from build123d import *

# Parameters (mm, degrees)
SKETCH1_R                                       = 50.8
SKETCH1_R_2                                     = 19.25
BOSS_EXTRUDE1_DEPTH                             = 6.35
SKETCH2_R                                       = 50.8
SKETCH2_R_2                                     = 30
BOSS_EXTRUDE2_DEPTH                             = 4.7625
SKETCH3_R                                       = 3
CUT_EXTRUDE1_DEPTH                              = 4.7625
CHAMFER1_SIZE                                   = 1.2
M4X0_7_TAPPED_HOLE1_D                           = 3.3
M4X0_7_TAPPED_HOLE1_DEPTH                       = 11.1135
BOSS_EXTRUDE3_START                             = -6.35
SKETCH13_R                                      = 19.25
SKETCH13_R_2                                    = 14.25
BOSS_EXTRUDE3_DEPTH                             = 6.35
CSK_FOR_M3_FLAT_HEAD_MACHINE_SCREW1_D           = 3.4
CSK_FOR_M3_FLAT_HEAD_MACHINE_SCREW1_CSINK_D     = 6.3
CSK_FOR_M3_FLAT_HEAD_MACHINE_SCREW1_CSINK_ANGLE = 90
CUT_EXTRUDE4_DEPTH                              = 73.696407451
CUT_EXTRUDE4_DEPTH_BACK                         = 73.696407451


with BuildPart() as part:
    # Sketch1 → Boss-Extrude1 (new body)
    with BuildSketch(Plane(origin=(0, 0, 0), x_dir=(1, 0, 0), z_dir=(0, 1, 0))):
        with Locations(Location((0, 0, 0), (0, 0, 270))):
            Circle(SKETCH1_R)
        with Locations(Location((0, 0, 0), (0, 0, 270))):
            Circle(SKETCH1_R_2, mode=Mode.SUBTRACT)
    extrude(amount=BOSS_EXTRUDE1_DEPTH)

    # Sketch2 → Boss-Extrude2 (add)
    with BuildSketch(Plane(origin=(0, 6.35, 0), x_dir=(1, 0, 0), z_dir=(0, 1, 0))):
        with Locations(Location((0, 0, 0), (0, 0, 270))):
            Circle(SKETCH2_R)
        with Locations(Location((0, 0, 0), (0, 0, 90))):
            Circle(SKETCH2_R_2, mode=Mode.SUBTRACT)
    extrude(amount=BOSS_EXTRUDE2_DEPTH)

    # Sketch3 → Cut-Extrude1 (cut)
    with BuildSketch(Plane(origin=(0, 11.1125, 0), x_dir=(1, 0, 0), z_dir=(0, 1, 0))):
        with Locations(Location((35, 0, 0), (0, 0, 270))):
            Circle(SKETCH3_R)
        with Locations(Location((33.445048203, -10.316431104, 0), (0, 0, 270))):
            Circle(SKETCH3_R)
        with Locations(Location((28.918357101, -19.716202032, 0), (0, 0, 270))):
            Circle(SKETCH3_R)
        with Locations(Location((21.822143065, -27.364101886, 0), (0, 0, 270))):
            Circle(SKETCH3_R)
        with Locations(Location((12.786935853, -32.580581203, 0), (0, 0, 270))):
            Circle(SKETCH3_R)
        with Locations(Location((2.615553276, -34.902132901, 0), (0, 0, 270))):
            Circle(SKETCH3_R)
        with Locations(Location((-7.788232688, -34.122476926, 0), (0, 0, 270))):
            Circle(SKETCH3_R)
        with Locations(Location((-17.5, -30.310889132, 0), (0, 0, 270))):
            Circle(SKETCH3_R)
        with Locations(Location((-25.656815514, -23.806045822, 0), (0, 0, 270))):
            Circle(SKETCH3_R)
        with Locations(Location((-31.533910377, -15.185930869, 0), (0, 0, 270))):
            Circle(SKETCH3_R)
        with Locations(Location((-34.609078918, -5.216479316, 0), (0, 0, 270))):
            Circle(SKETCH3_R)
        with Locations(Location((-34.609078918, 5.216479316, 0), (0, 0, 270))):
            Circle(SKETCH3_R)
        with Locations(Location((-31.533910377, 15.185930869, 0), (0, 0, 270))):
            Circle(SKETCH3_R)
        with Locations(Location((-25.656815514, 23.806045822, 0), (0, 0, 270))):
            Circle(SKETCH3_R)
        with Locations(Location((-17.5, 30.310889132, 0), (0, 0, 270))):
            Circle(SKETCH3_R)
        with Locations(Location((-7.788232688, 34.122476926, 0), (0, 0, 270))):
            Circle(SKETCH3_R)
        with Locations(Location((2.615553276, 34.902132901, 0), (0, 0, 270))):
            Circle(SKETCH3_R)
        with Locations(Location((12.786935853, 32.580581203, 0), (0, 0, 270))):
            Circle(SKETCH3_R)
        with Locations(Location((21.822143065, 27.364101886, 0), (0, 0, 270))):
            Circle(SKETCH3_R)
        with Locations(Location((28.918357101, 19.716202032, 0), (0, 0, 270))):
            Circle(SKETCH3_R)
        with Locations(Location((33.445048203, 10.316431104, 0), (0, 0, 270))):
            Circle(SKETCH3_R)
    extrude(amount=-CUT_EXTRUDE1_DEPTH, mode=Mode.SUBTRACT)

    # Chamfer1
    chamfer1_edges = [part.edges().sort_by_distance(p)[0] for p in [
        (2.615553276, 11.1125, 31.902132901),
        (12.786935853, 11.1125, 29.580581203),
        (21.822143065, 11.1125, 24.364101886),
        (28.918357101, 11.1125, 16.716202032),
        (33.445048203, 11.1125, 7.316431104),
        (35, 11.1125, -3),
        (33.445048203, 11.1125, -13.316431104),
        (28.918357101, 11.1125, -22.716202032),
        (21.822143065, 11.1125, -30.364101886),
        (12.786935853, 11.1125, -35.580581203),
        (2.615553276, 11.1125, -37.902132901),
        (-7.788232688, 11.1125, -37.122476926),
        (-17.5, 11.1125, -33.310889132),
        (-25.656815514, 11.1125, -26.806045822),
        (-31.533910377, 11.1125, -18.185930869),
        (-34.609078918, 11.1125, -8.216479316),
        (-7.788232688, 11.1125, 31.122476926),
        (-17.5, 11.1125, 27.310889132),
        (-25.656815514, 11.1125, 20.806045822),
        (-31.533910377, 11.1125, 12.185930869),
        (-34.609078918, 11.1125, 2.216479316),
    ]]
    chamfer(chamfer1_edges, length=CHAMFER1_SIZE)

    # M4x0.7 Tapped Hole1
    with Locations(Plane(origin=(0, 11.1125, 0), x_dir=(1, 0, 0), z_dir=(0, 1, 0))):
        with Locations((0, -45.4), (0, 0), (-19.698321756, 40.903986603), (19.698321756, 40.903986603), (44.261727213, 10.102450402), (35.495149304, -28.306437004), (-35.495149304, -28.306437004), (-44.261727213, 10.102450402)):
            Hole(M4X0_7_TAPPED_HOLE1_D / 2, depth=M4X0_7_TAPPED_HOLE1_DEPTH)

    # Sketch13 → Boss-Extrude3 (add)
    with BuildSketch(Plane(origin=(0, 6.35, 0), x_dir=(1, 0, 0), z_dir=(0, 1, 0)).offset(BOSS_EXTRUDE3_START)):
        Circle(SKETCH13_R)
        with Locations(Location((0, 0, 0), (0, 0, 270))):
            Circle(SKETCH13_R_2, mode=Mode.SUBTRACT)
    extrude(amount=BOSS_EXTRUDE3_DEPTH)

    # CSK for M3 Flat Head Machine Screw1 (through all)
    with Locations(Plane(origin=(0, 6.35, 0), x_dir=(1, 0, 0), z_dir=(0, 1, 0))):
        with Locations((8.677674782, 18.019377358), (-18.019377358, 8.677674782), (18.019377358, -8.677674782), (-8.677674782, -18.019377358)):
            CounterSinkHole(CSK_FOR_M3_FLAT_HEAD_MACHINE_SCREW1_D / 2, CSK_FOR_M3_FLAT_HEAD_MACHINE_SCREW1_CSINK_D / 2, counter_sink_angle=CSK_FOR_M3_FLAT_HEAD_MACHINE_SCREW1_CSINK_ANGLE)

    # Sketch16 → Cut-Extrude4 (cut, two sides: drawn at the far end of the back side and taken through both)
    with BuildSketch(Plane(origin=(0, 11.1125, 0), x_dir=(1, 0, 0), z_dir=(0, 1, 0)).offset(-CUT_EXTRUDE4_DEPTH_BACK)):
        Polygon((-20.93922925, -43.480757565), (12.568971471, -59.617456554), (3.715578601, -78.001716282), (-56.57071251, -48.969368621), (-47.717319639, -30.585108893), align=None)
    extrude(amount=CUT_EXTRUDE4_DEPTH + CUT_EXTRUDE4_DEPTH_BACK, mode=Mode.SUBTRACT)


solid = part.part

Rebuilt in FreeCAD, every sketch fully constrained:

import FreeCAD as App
import Part
import Sketcher
from FreeCAD import Vector
Q = App.Units.Quantity


def edges_at(feature, points):
    """Names of the edges that pass closest to the given points."""
    edges = feature.Shape.Edges
    near = lambda p: min(range(len(edges)), key=lambda i: edges[i].distToShape(Part.Vertex(*p))[0])
    return sorted({f"Edge{near(p) + 1}" for p in points})

doc = App.newDocument("Part")
body = doc.addObject("PartDesign::Body", "Body")

# Sketch on XZ plane
sketch1 = doc.addObject("Sketcher::SketchObject", "Sketch")
body.addObject(sketch1)
sketch1.AttachmentSupport = (doc.XZ_Plane, [""])
sketch1.MapMode = "FlatFace"
sketch1.addGeometry([
    Part.Circle(Vector(0, 0, 0), Vector(0, 0, 1), 50.8),
    Part.Circle(Vector(0, 0, 0), Vector(0, 0, 1), 19.25),
], False)
sketch1.addConstraint([
    Sketcher.Constraint("Coincident", 0, 3, -1, 1),
    Sketcher.Constraint("Coincident", 1, 3, -1, 1),
    Sketcher.Constraint("Diameter", 0, Q("101.6 mm")),
    Sketcher.Constraint("Diameter", 1, Q("38.5 mm")),
])
pad1 = doc.addObject("PartDesign::Pad", "Pad")
body.addObject(pad1)
pad1.Profile = sketch1
pad1.Length = 6.35
pad1.Reversed = True

# Sketch on XZ plane
sketch2 = doc.addObject("Sketcher::SketchObject", "Sketch001")
body.addObject(sketch2)
sketch2.AttachmentSupport = (doc.XZ_Plane, [""])
sketch2.MapMode = "FlatFace"
sketch2.AttachmentOffset = App.Placement(Vector(0, 0, -6.35), App.Rotation())
sketch2.addGeometry([
    Part.Circle(Vector(0, 0, 0), Vector(0, 0, 1), 50.8),
    Part.Circle(Vector(0, 0, 0), Vector(0, 0, 1), 30),
], False)
sketch2.addConstraint([
    Sketcher.Constraint("Coincident", 0, 3, -1, 1),
    Sketcher.Constraint("Coincident", 1, 3, -1, 1),
    Sketcher.Constraint("Diameter", 1, Q("60 mm")),
    Sketcher.Constraint("Diameter", 0, Q("101.6 mm")),
])
pad2 = doc.addObject("PartDesign::Pad", "Pad001")
body.addObject(pad2)
pad2.Profile = sketch2
pad2.Length = 4.7625
pad2.Reversed = True

# Sketch on XZ plane
sketch3 = doc.addObject("Sketcher::SketchObject", "Sketch002")
body.addObject(sketch3)
sketch3.AttachmentSupport = (doc.XZ_Plane, [""])
sketch3.MapMode = "FlatFace"
sketch3.AttachmentOffset = App.Placement(Vector(0, 0, -11.1125), App.Rotation())
sketch3.addGeometry([
    Part.Circle(Vector(35, 0, 0), Vector(0, 0, 1), 3),  # 0
    Part.Circle(Vector(33.445048, 10.316431, 0), Vector(0, 0, 1), 3),  # 1
    Part.Circle(Vector(28.918357, 19.716202, 0), Vector(0, 0, 1), 3),  # 2
    Part.Circle(Vector(21.822143, 27.364102, 0), Vector(0, 0, 1), 3),  # 3
    Part.Circle(Vector(12.786936, 32.580581, 0), Vector(0, 0, 1), 3),  # 4
    Part.Circle(Vector(2.615553, 34.902133, 0), Vector(0, 0, 1), 3),  # 5
    Part.Circle(Vector(-7.788233, 34.122477, 0), Vector(0, 0, 1), 3),  # 6
    Part.Circle(Vector(-17.5, 30.310889, 0), Vector(0, 0, 1), 3),  # 7
    Part.Circle(Vector(-25.656816, 23.806046, 0), Vector(0, 0, 1), 3),  # 8
    Part.Circle(Vector(-31.53391, 15.185931, 0), Vector(0, 0, 1), 3),  # 9
    Part.Circle(Vector(-34.609079, 5.216479, 0), Vector(0, 0, 1), 3),  # 10
    Part.Circle(Vector(-34.609079, -5.216479, 0), Vector(0, 0, 1), 3),  # 11
    Part.Circle(Vector(-31.53391, -15.185931, 0), Vector(0, 0, 1), 3),  # 12
    Part.Circle(Vector(-25.656816, -23.806046, 0), Vector(0, 0, 1), 3),  # 13
    Part.Circle(Vector(-17.5, -30.310889, 0), Vector(0, 0, 1), 3),  # 14
    Part.Circle(Vector(-7.788233, -34.122477, 0), Vector(0, 0, 1), 3),  # 15
    Part.Circle(Vector(2.615553, -34.902133, 0), Vector(0, 0, 1), 3),  # 16
    Part.Circle(Vector(12.786936, -32.580581, 0), Vector(0, 0, 1), 3),  # 17
    Part.Circle(Vector(21.822143, -27.364102, 0), Vector(0, 0, 1), 3),  # 18
    Part.Circle(Vector(28.918357, -19.716202, 0), Vector(0, 0, 1), 3),  # 19
    Part.Circle(Vector(33.445048, -10.316431, 0), Vector(0, 0, 1), 3),  # 20
], False)
sketch3.addConstraint([
    Sketcher.Constraint("Equal", 0, 1),
    Sketcher.Constraint("Equal", 1, 2),
    Sketcher.Constraint("Equal", 2, 3),
    Sketcher.Constraint("Equal", 3, 4),
    Sketcher.Constraint("Equal", 4, 5),
    Sketcher.Constraint("Equal", 5, 6),
    Sketcher.Constraint("Equal", 6, 7),
    Sketcher.Constraint("Equal", 7, 8),
    Sketcher.Constraint("Equal", 8, 9),
    Sketcher.Constraint("Equal", 9, 10),
    Sketcher.Constraint("Equal", 10, 11),
    Sketcher.Constraint("Equal", 11, 12),
    Sketcher.Constraint("Equal", 12, 13),
    Sketcher.Constraint("Equal", 13, 14),
    Sketcher.Constraint("Equal", 14, 15),
    Sketcher.Constraint("Equal", 15, 16),
    Sketcher.Constraint("Equal", 16, 17),
    Sketcher.Constraint("Equal", 17, 18),
    Sketcher.Constraint("Equal", 18, 19),
    Sketcher.Constraint("Equal", 19, 20),
    Sketcher.Constraint("Symmetric", 10, 3, 11, 3, -1),
    Sketcher.Constraint("Symmetric", 9, 3, 12, 3, -1),
    Sketcher.Constraint("Symmetric", 8, 3, 13, 3, -1),
    Sketcher.Constraint("Symmetric", 7, 3, 14, 3, -1),
    Sketcher.Constraint("Symmetric", 6, 3, 15, 3, -1),
    Sketcher.Constraint("Symmetric", 5, 3, 16, 3, -1),
    Sketcher.Constraint("Symmetric", 4, 3, 17, 3, -1),
    Sketcher.Constraint("Symmetric", 3, 3, 18, 3, -1),
    Sketcher.Constraint("Symmetric", 2, 3, 19, 3, -1),
    Sketcher.Constraint("Symmetric", 1, 3, 20, 3, -1),
    Sketcher.Constraint("PointOnObject", 0, 3, -1),
    Sketcher.Constraint("Diameter", 0, Q("6 mm")),
    Sketcher.Constraint("DistanceX", -1, 1, 0, 3, Q("35 mm")),
    Sketcher.Constraint("DistanceX", 7, 3, -1, 1, Q("17.5 mm")),
    Sketcher.Constraint("DistanceY", -1, 1, 3, 3, Q("27.364102 mm")),
    Sketcher.Constraint("DistanceY", 2, 3, 3, 3, Q("7.6479 mm")),
    Sketcher.Constraint("DistanceY", 1, 3, 5, 3, Q("24.585702 mm")),
    Sketcher.Constraint("DistanceX", -1, 1, 1, 3, Q("33.445048 mm")),
    Sketcher.Constraint("DistanceY", -1, 1, 1, 3, Q("10.316431 mm")),
    Sketcher.Constraint("DistanceY", -1, 1, 4, 3, Q("32.580581 mm")),
    Sketcher.Constraint("DistanceY", -1, 1, 7, 3, Q("30.310889 mm")),
    Sketcher.Constraint("DistanceX", 9, 3, -1, 1, Q("31.53391 mm")),
    Sketcher.Constraint("DistanceY", -1, 1, 9, 3, Q("15.185931 mm")),
    Sketcher.Constraint("DistanceX", 10, 3, -1, 1, Q("34.609079 mm")),
    Sketcher.Constraint("DistanceY", -1, 1, 10, 3, Q("5.216479 mm")),
    Sketcher.Constraint("DistanceX", 2, 3, 1, 3, Q("4.526691 mm")),
    Sketcher.Constraint("DistanceX", 4, 3, 2, 3, Q("16.131421 mm")),
    Sketcher.Constraint("DistanceX", 5, 3, 3, 3, Q("19.20659 mm")),
    Sketcher.Constraint("DistanceX", 6, 3, 4, 3, Q("20.575169 mm")),
    Sketcher.Constraint("DistanceY", 8, 3, 6, 3, Q("10.316431 mm")),
    Sketcher.Constraint("DistanceX", 8, 3, 5, 3, Q("28.272369 mm")),
    Sketcher.Constraint("DistanceX", 8, 3, 4, 3, Q("38.443751 mm")),
    Sketcher.Constraint("DistanceY", 13, 3, 8, 3, Q("47.612092 mm")),
])
pocket1 = doc.addObject("PartDesign::Pocket", "Pocket")
body.addObject(pocket1)
pocket1.Profile = sketch3
pocket1.Length = 4.7625
pocket1.Reversed = True
doc.recompute()

chamfer = doc.addObject("PartDesign::Chamfer", "Chamfer")
body.addObject(chamfer)
chamfer.Base = (pocket1, edges_at(pocket1, [
    (2.616, 11.113, 31.902),
    (12.787, 11.113, 29.581),
    (21.822, 11.113, 24.364),
    (28.918, 11.113, 16.716),
    (33.445, 11.113, 7.316),
    (35, 11.113, -3),
    (33.445, 11.113, -13.316),
    (28.918, 11.113, -22.716),
    (21.822, 11.113, -30.364),
    (12.787, 11.113, -35.581),
    (2.616, 11.113, -37.902),
    (-7.788, 11.113, -37.122),
    (-17.5, 11.113, -33.311),
    (-25.657, 11.113, -26.806),
    (-31.534, 11.113, -18.186),
    (-34.609, 11.113, -8.216),
    (-7.788, 11.113, 31.122),
    (-17.5, 11.113, 27.311),
    (-25.657, 11.113, 20.806),
    (-31.534, 11.113, 12.186),
    (-34.609, 11.113, 2.216),
]))
chamfer.Size = 1.2

# Sketch on XZ plane
sketch4 = doc.addObject("Sketcher::SketchObject", "Sketch003")
body.addObject(sketch4)
sketch4.AttachmentSupport = (doc.XZ_Plane, [""])
sketch4.MapMode = "FlatFace"
sketch4.AttachmentOffset = App.Placement(Vector(0, 0, -11.1125), App.Rotation())
sketch4.addGeometry([
    Part.Circle(Vector(0, 45.4, 0), Vector(0, 0, 1), 1.65),  # 0
    Part.Circle(Vector(0, 0, 0), Vector(0, 0, 1), 1.65),  # 1
    Part.Circle(Vector(-19.698322, -40.903987, 0), Vector(0, 0, 1), 1.65),  # 2
    Part.Circle(Vector(19.698322, -40.903987, 0), Vector(0, 0, 1), 1.65),  # 3
    Part.Circle(Vector(44.261727, -10.10245, 0), Vector(0, 0, 1), 1.65),  # 4
    Part.Circle(Vector(35.495149, 28.306437, 0), Vector(0, 0, 1), 1.65),  # 5
    Part.Circle(Vector(-35.495149, 28.306437, 0), Vector(0, 0, 1), 1.65),  # 6
    Part.Circle(Vector(-44.261727, -10.10245, 0), Vector(0, 0, 1), 1.65),  # 7
], False)
sketch4.addConstraint([
    Sketcher.Constraint("Coincident", 1, 3, -1, 1),
    Sketcher.Constraint("Equal", 0, 1),
    Sketcher.Constraint("Equal", 1, 2),
    Sketcher.Constraint("Equal", 2, 3),
    Sketcher.Constraint("Equal", 3, 4),
    Sketcher.Constraint("Equal", 4, 5),
    Sketcher.Constraint("Equal", 5, 6),
    Sketcher.Constraint("Equal", 6, 7),
    Sketcher.Constraint("Symmetric", 2, 3, 3, 3, -2),
    Sketcher.Constraint("Symmetric", 5, 3, 6, 3, -2),
    Sketcher.Constraint("Symmetric", 4, 3, 7, 3, -2),
    Sketcher.Constraint("PointOnObject", 0, 3, -2),
    Sketcher.Constraint("Diameter", 0, Q("3.3 mm")),
    Sketcher.Constraint("DistanceY", -1, 1, 0, 3, Q("45.4 mm")),
    Sketcher.Constraint("DistanceX", 6, 3, 5, 3, Q("70.990299 mm")),
    Sketcher.Constraint("DistanceX", 2, 3, -1, 1, Q("19.698322 mm")),
    Sketcher.Constraint("DistanceY", 4, 3, -1, 1, Q("10.10245 mm")),
    Sketcher.Constraint("DistanceX", 2, 3, 4, 3, Q("63.960049 mm")),
    Sketcher.Constraint("DistanceY", 2, 3, -1, 1, Q("40.903987 mm")),
    Sketcher.Constraint("DistanceY", -1, 1, 5, 3, Q("28.306437 mm")),
])
doc.recompute()
hole = doc.addObject("PartDesign::Hole", "Hole")
body.addObject(hole)
hole.Profile = sketch4
hole.ThreadType = "None"
hole.Diameter = 3.3
hole.DepthType = "Dimension"
hole.Depth = 11.1135
hole.DrillPoint = "Flat"
hole.Reversed = True

# Sketch on XZ plane
sketch5 = doc.addObject("Sketcher::SketchObject", "Sketch004")
body.addObject(sketch5)
sketch5.AttachmentSupport = (doc.XZ_Plane, [""])
sketch5.MapMode = "FlatFace"
sketch5.addGeometry([
    Part.Circle(Vector(0, 0, 0), Vector(0, 0, 1), 19.25),
    Part.Circle(Vector(0, 0, 0), Vector(0, 0, 1), 14.25),
], False)
sketch5.addConstraint([
    Sketcher.Constraint("Coincident", 0, 3, -1, 1),
    Sketcher.Constraint("Coincident", 1, 3, -1, 1),
    Sketcher.Constraint("Diameter", 0, Q("38.5 mm")),
    Sketcher.Constraint("Diameter", 1, Q("28.5 mm")),
])
pad3 = doc.addObject("PartDesign::Pad", "Pad002")
body.addObject(pad3)
pad3.Profile = sketch5
pad3.Length = 6.35
pad3.Reversed = True

# Sketch on XZ plane
sketch6 = doc.addObject("Sketcher::SketchObject", "Sketch005")
body.addObject(sketch6)
sketch6.AttachmentSupport = (doc.XZ_Plane, [""])
sketch6.MapMode = "FlatFace"
sketch6.AttachmentOffset = App.Placement(Vector(0, 0, -6.35), App.Rotation())
sketch6.addGeometry([
    Part.Circle(Vector(8.677675, -18.019377, 0), Vector(0, 0, 1), 1.7),
    Part.Circle(Vector(-18.019377, -8.677675, 0), Vector(0, 0, 1), 1.7),
    Part.Circle(Vector(18.019377, 8.677675, 0), Vector(0, 0, 1), 1.7),
    Part.Circle(Vector(-8.677675, 18.019377, 0), Vector(0, 0, 1), 1.7),
], False)
sketch6.addConstraint([
    Sketcher.Constraint("Equal", 0, 1),
    Sketcher.Constraint("Equal", 1, 2),
    Sketcher.Constraint("Equal", 2, 3),
    Sketcher.Constraint("Symmetric", 1, 3, 2, 3, -1, 1),
    Sketcher.Constraint("Symmetric", 0, 3, 3, 3, -1, 1),
    Sketcher.Constraint("Diameter", 0, Q("3.4 mm")),
    Sketcher.Constraint("DistanceY", 1, 3, 2, 3, Q("17.35535 mm")),
    Sketcher.Constraint("DistanceX", 3, 3, 0, 3, Q("17.35535 mm")),
    Sketcher.Constraint("DistanceY", 0, 3, -1, 1, Q("18.019377 mm")),
    Sketcher.Constraint("DistanceX", 1, 3, -1, 1, Q("18.019377 mm")),
])
doc.recompute()
hole2 = doc.addObject("PartDesign::Hole", "Hole001")
body.addObject(hole2)
hole2.Profile = sketch6
hole2.ThreadType = "None"
hole2.Diameter = 3.4
hole2.DepthType = "ThroughAll"
hole2.HoleCutType = "Countersink"
hole2.HoleCutDiameter = 6.3
hole2.HoleCutCountersinkAngle = 90
hole2.Reversed = True

# Sketch on XZ plane
sketch7 = doc.addObject("Sketcher::SketchObject", "Sketch006")
body.addObject(sketch7)
sketch7.AttachmentSupport = (doc.XZ_Plane, [""])
sketch7.MapMode = "FlatFace"
sketch7.AttachmentOffset = App.Placement(Vector(0, 0, -11.1125), App.Rotation())
sketch7.addGeometry([
    Part.LineSegment(Vector(12.568971, 59.617457, 0), Vector(-20.939229, 43.480758, 0)),  # 0
    Part.LineSegment(Vector(-20.939229, 43.480758, 0), Vector(-47.71732, 30.585109, 0)),  # 1
    Part.LineSegment(Vector(-47.71732, 30.585109, 0), Vector(-56.570713, 48.969369, 0)),  # 2
    Part.LineSegment(Vector(-56.570713, 48.969369, 0), Vector(3.715579, 78.001716, 0)),  # 3
    Part.LineSegment(Vector(3.715579, 78.001716, 0), Vector(12.568971, 59.617457, 0)),  # 4
], False)
sketch7.addConstraint([
    Sketcher.Constraint("Coincident", 0, 2, 1, 1),
    Sketcher.Constraint("Coincident", 1, 2, 2, 1),
    Sketcher.Constraint("Coincident", 2, 2, 3, 1),
    Sketcher.Constraint("Coincident", 3, 2, 4, 1),
    Sketcher.Constraint("Coincident", 4, 2, 0, 1),
    Sketcher.Constraint("Parallel", 0, 1),
    Sketcher.Constraint("Perpendicular", 1, 2),
    Sketcher.Constraint("Perpendicular", 2, 3),
    Sketcher.Constraint("Perpendicular", 3, 4),
    Sketcher.Constraint("DistanceX", 1, 2, 3, 2, Q("51.432898 mm")),
    Sketcher.Constraint("DistanceX", 0, 2, 4, 2, Q("33.508201 mm")),
    Sketcher.Constraint("DistanceY", 0, 2, 4, 2, Q("16.136699 mm")),
    Sketcher.Constraint("Distance", 1, Q("29.721438 mm")),
    Sketcher.Constraint("DistanceX", 0, 2, -1, 1, Q("20.939229 mm")),
    Sketcher.Constraint("DistanceY", -1, 1, 1, 2, Q("30.585109 mm")),
])
pocket2 = doc.addObject("PartDesign::Pocket", "Pocket001")
body.addObject(pocket2)
pocket2.Profile = sketch7
pocket2.Type = "ThroughAll"
pocket2.Midplane = True

doc.recompute()
